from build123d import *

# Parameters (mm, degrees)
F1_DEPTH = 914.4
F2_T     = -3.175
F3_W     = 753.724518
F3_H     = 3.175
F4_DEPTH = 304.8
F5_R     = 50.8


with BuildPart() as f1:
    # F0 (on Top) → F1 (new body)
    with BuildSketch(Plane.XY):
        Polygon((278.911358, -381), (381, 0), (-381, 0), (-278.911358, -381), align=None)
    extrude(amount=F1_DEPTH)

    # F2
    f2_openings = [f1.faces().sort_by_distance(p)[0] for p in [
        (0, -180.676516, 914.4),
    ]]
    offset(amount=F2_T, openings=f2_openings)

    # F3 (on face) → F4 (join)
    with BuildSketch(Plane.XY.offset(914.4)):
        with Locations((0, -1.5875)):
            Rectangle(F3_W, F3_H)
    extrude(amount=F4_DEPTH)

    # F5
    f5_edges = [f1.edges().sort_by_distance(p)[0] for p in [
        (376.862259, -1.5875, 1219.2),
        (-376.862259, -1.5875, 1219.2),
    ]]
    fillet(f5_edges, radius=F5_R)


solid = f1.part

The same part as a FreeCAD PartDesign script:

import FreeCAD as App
import Part
import Sketcher

V = App.Vector
Q = App.Units.Quantity


def edges_at(feature, points):
    """Names of the edges that pass closest to the given points."""
    edges = feature.Shape.Edges
    near = lambda p: min(range(len(edges)), key=lambda i: edges[i].distToShape(Part.Vertex(*p))[0])
    return sorted({f"Edge{near(p) + 1}" for p in points})


def faces_at(feature, points):
    """Names of the faces that lie closest to the given points."""
    faces = feature.Shape.Faces
    near = lambda p: min(range(len(faces)), key=lambda i: faces[i].distToShape(Part.Vertex(*p))[0])
    return sorted({f"Face{near(p) + 1}" for p in points})


def add_polygon(sketch, points):
    """Adds a closed chain of lines whose ends are joined by coincident constraints."""
    first, n = sketch.GeometryCount, len(points)
    for a, b in zip(points, points[1:] + points[:1]):
        sketch.addGeometry(Part.LineSegment(App.Vector(*a, 0), App.Vector(*b, 0)), False)
    for i in range(n):
        sketch.addConstraint(Sketcher.Constraint("Coincident", first + i, 2, first + (i + 1) % n, 1))

doc = App.newDocument("Part")
body = doc.addObject("PartDesign::Body", "Body")

# Sketch on XY plane
sketch1 = doc.addObject("Sketcher::SketchObject", "Sketch")
body.addObject(sketch1)
sketch1.AttachmentSupport = (doc.XY_Plane, [""])
sketch1.MapMode = "FlatFace"
add_polygon(sketch1, [(278.911358, -381), (381, 0), (-381, 0), (-278.911358, -381)])  # lines 0-3
sketch1.addConstraint([
    Sketcher.Constraint("Horizontal", 1),
    Sketcher.Constraint("Horizontal", 3),
    Sketcher.Constraint("Symmetric", 0, 2, 1, 2, -1, 1),
    Sketcher.Constraint("Equal", 0, 2),
    Sketcher.Constraint("DistanceX", 1, 2, 1, 1, Q("30 in")),
    Sketcher.Constraint("DistanceY", 2, 2, -1, 1, Q("15 in")),
    Sketcher.Constraint("Angle", 0, Q("75 deg")),
])
pad1 = doc.addObject("PartDesign::Pad", "Pad")
body.addObject(pad1)
pad1.Profile = sketch1
pad1.Length = Q("36 in")
doc.recompute()

thickness = doc.addObject("PartDesign::Thickness", "Thickness")
body.addObject(thickness)
thickness.Base = (pad1, faces_at(pad1, [(0, -190.5, 914.4)]))
thickness.Value = Q("0.125 in")
thickness.Reversed = True
thickness.Join = "Arc"

# Sketch on XY plane
sketch2 = doc.addObject("Sketcher::SketchObject", "Sketch001")
body.addObject(sketch2)
sketch2.AttachmentSupport = (doc.XY_Plane, [""])
sketch2.MapMode = "FlatFace"
sketch2.AttachmentOffset = App.Placement(V(0, 0, 36 * 25.4), App.Rotation())
add_polygon(sketch2, [(-376.862259, 0), (-376.862259, -3.175), (376.862259, -3.175), (376.862259, 0)])  # lines 0-3
sketch2.addConstraint([
    Sketcher.Constraint("Vertical", 0),
    Sketcher.Constraint("Horizontal", 1),
    Sketcher.Constraint("Vertical", 2),
    Sketcher.Constraint("Horizontal", 3),
    Sketcher.Constraint("Symmetric", 2, 2, 3, 2, -1, 1),
    Sketcher.Constraint("DistanceY", 0, 2, 0, 1, Q("0.125 in")),
    Sketcher.Constraint("DistanceX", 1, 1, 1, 2, 753.724518),
])
pad2 = doc.addObject("PartDesign::Pad", "Pad001")
body.addObject(pad2)
pad2.Profile = sketch2
pad2.Length = Q("12 in")
doc.recompute()

fillet = doc.addObject("PartDesign::Fillet", "Fillet")
body.addObject(fillet)
fillet.Base = (pad2, edges_at(pad2, [(376.862, -1.587, 1219.2), (-376.862, -1.587, 1219.2)]))
fillet.Radius = Q("2 in")

doc.recompute()
